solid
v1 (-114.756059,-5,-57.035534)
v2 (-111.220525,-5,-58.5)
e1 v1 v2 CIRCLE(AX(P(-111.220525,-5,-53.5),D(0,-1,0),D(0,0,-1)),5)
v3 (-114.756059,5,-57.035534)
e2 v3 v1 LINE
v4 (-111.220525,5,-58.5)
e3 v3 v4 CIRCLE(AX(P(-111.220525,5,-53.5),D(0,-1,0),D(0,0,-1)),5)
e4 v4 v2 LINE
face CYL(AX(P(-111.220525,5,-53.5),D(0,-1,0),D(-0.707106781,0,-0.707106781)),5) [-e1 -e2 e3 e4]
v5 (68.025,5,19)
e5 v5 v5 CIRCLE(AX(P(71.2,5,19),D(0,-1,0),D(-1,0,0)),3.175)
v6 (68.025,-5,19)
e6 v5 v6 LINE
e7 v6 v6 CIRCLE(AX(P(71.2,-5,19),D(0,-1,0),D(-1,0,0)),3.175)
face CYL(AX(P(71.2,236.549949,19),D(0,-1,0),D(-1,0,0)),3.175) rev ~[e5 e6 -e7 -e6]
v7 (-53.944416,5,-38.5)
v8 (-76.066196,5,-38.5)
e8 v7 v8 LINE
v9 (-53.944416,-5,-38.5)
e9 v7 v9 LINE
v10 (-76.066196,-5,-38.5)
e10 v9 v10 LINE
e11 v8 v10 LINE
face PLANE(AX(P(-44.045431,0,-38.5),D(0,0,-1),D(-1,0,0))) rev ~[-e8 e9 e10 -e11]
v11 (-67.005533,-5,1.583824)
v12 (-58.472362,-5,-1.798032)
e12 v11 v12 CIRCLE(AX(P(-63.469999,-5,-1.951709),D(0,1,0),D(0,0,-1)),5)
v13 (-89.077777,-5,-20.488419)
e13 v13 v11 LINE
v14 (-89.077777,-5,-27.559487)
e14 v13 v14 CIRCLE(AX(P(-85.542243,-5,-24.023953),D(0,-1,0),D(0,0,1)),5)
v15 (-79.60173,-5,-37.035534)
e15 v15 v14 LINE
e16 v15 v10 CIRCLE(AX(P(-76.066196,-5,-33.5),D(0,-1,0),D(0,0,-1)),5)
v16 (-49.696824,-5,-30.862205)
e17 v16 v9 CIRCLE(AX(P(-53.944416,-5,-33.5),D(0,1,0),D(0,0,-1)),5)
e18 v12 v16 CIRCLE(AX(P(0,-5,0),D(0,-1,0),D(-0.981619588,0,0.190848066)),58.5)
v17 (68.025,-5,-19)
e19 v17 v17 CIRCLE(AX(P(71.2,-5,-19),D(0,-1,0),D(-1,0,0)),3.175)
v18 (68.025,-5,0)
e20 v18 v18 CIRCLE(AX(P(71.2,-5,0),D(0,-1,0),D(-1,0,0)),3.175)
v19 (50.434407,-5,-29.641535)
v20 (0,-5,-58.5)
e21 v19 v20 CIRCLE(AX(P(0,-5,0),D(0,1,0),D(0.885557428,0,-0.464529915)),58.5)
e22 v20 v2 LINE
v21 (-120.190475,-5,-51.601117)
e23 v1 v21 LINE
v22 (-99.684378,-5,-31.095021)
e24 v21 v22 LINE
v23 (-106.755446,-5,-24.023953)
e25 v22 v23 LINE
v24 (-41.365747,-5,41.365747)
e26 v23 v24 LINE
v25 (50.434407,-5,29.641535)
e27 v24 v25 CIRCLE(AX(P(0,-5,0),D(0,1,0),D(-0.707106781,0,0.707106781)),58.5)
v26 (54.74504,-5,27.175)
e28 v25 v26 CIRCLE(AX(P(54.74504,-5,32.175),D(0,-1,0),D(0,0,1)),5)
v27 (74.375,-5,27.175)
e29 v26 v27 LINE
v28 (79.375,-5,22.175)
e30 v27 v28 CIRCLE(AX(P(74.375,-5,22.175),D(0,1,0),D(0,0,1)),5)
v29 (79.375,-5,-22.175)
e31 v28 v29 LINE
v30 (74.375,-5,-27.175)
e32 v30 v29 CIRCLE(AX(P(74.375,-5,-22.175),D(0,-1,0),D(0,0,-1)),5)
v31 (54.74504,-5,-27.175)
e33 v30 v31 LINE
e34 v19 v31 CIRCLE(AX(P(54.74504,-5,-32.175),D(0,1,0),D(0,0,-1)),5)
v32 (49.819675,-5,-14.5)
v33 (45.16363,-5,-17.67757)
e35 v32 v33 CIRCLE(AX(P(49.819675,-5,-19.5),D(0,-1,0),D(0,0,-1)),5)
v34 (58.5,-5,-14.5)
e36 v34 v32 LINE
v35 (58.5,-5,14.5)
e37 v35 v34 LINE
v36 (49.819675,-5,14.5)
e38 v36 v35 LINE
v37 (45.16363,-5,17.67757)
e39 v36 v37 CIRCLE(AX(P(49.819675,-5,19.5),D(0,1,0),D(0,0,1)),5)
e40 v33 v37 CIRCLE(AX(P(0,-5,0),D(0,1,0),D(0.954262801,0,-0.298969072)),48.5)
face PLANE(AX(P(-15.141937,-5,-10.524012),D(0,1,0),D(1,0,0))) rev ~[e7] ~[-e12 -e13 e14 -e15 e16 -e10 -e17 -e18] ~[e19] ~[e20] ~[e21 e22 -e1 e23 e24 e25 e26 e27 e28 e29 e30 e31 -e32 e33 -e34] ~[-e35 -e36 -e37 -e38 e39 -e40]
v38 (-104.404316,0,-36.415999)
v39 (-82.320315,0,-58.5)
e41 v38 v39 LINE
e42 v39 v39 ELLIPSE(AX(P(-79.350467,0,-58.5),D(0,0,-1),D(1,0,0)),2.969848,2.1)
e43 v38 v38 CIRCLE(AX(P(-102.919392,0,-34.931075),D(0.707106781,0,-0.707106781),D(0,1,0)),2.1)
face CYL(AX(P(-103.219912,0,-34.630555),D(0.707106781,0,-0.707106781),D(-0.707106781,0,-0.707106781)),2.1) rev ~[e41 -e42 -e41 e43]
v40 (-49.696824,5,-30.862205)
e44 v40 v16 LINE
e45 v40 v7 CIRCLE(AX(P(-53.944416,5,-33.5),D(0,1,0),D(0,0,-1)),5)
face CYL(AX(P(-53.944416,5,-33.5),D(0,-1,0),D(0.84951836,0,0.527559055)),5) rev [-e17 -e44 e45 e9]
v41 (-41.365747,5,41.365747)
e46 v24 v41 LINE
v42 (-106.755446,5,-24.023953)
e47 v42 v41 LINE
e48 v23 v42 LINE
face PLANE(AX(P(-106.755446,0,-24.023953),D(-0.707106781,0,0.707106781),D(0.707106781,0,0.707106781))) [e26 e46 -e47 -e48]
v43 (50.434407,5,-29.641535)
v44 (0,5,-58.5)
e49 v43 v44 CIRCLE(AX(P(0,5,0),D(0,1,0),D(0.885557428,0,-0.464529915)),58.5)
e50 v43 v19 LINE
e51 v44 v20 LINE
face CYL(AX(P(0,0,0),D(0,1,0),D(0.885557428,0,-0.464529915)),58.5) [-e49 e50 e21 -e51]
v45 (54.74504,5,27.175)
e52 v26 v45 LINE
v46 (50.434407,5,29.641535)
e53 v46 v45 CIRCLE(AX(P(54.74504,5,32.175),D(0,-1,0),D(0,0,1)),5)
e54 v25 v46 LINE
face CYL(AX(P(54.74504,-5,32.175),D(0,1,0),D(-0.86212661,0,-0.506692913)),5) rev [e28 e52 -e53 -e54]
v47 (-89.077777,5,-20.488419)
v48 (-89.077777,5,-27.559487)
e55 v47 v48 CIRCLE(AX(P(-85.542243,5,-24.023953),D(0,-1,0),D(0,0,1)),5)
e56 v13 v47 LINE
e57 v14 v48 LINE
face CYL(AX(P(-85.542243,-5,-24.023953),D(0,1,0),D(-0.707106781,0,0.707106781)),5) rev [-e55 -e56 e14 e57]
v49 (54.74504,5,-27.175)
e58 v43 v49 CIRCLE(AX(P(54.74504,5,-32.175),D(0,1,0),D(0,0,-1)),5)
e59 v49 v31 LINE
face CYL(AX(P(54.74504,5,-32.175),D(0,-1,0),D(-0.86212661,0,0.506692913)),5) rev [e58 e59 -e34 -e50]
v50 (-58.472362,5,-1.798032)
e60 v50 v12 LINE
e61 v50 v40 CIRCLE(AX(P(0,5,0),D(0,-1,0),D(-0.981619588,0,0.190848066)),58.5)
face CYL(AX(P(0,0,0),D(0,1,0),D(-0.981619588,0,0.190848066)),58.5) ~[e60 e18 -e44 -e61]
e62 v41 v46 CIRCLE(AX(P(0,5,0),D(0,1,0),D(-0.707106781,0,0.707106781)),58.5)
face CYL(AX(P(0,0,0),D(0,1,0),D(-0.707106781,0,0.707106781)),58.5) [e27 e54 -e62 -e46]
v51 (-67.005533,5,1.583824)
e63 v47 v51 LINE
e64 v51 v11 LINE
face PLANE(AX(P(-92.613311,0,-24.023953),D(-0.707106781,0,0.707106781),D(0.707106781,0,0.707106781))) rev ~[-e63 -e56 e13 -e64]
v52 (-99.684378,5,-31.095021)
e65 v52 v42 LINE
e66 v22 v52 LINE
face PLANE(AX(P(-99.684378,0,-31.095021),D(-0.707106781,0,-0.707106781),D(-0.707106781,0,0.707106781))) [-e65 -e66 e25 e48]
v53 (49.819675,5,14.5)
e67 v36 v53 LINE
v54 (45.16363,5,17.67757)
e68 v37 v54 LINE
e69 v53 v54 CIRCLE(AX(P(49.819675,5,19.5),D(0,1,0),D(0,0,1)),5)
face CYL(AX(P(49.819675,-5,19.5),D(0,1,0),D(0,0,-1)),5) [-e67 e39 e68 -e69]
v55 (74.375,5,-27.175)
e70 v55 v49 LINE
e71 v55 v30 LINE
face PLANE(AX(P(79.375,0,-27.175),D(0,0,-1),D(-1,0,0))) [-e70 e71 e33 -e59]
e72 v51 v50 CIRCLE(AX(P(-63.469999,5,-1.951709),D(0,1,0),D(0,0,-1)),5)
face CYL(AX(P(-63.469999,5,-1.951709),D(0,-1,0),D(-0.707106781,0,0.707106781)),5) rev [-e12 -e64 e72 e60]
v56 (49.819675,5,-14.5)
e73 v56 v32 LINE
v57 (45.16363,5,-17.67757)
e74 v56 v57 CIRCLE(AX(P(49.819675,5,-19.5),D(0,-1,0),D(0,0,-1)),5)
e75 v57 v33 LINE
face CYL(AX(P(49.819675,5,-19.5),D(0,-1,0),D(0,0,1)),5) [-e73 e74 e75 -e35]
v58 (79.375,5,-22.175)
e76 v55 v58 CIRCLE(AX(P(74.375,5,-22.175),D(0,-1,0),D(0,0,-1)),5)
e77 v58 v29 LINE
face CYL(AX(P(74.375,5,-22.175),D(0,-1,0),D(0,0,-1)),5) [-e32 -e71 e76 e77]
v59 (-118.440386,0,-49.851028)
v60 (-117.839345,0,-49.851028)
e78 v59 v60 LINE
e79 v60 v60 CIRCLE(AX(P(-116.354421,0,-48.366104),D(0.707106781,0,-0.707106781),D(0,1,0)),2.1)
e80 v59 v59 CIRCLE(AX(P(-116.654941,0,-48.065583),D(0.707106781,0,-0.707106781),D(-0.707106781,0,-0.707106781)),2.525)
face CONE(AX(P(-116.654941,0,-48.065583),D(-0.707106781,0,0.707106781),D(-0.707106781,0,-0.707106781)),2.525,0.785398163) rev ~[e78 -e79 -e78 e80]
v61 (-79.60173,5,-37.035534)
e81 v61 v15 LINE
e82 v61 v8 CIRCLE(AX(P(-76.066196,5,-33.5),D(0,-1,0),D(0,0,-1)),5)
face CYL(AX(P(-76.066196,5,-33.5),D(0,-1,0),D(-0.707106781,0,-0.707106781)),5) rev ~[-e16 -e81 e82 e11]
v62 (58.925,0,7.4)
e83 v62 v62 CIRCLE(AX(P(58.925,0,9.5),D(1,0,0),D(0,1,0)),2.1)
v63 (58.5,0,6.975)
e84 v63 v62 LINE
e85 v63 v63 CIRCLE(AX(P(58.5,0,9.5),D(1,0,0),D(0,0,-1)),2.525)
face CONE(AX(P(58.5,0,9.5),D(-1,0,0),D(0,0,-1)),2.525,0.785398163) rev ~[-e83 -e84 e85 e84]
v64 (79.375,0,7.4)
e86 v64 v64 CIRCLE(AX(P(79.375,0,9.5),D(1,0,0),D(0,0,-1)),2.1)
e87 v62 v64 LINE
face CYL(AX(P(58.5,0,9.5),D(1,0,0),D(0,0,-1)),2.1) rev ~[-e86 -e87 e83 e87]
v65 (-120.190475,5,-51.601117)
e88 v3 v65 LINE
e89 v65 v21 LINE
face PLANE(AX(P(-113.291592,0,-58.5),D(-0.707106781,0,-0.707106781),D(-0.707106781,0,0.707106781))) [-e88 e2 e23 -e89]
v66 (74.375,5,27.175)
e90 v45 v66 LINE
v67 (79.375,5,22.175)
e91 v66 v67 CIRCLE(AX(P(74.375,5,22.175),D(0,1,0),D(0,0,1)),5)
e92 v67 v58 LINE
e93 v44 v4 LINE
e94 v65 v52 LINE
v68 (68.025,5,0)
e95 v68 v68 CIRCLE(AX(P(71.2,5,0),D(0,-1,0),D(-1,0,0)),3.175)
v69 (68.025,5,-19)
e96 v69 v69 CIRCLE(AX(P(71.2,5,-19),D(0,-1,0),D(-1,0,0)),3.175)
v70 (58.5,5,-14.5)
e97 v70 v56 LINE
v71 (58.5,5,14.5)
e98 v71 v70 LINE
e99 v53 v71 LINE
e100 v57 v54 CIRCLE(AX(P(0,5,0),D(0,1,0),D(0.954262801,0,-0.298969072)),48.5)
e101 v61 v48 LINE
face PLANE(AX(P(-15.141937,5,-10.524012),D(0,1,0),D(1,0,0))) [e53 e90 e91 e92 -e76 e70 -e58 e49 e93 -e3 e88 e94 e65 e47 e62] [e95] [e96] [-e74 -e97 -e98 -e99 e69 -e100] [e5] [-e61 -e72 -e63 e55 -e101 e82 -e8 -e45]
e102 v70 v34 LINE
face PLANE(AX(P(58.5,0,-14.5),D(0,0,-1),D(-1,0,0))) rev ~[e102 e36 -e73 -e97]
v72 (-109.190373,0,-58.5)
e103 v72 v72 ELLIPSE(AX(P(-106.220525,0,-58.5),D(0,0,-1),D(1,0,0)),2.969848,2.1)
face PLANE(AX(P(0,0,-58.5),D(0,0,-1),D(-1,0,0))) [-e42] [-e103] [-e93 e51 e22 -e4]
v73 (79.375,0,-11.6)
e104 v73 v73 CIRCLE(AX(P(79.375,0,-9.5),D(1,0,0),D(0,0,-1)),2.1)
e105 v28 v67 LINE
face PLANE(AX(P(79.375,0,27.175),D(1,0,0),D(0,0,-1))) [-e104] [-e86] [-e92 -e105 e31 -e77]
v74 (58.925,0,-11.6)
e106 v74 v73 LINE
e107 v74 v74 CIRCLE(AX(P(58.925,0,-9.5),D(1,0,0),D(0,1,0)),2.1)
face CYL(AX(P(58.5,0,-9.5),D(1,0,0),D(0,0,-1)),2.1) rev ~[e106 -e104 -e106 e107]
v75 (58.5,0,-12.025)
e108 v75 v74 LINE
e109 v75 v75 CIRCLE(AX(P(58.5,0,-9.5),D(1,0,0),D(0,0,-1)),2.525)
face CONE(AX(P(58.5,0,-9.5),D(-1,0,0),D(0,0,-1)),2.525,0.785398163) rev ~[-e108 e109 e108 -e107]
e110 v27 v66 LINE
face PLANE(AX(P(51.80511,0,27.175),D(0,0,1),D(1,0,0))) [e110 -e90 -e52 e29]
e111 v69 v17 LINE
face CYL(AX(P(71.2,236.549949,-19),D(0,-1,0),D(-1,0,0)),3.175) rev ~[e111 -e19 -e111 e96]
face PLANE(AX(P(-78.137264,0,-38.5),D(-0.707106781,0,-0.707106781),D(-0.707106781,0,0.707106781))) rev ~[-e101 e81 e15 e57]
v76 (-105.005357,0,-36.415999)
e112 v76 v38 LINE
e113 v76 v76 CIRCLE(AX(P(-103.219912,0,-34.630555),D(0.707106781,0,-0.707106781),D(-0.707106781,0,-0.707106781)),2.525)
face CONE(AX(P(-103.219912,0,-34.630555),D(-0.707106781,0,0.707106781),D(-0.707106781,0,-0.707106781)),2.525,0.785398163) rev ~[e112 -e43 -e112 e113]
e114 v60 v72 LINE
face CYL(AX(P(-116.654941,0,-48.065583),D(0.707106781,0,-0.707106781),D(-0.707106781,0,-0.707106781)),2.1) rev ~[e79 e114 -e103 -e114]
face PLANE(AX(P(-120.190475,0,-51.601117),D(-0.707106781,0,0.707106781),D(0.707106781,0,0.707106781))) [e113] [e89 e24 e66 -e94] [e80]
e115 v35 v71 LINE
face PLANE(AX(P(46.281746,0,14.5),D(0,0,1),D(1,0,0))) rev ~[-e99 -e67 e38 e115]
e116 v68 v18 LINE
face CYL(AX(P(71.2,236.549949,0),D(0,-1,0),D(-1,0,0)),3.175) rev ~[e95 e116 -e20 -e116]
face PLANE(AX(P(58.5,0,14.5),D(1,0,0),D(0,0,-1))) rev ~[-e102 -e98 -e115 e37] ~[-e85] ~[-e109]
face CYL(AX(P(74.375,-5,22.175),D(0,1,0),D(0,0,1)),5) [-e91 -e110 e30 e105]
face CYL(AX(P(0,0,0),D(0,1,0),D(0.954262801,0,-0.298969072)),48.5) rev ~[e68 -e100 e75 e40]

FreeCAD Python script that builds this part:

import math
import FreeCAD as App
import Part
import Sketcher

V = App.Vector
Q = App.Units.Quantity


def edges_at(feature, points):
    """Names of the edges that pass closest to the given points."""
    edges = feature.Shape.Edges
    near = lambda p: min(range(len(edges)), key=lambda i: edges[i].distToShape(Part.Vertex(*p))[0])
    return sorted({f"Edge{near(p) + 1}" for p in points})

doc = App.newDocument("Part")
body = doc.addObject("PartDesign::Body", "Body")

# Sketch on XZ plane
sketch1 = body.newObject("Sketcher::SketchObject", "Sketch")
sketch1.AttachmentSupport = (doc.getObject("XZ_Plane"), [""])
sketch1.MapMode = "FlatFace"
sketch1.addGeometry(Part.LineSegment(V(-120, -52, 0), V(-100, -31, 0)), False)
sketch1.addGeometry(Part.LineSegment(V(-100, -31, 0), V(-107, -24, 0)), False)
sketch1.addGeometry(Part.LineSegment(V(-107, -24, 0), V(-41, 41, 0)), False)
sketch1.addGeometry(Part.ArcOfCircle(Part.Circle(V(0, 0, 0), V(0, 0, 1), 58), math.radians(28), math.radians(135)), False)
sketch1.addGeometry(Part.LineSegment(V(52, 27, 0), V(79, 27, 0)), False)
sketch1.addGeometry(Part.LineSegment(V(79, 27, 0), V(79, -27, 0)), False)
sketch1.addGeometry(Part.LineSegment(V(79, -27, 0), V(52, -27, 0)), False)
sketch1.addGeometry(Part.ArcOfCircle(Part.Circle(V(0, 0, 0), V(0, 0, 1), 58), math.radians(-90), math.radians(-28)), False)
sketch1.addGeometry(Part.LineSegment(V(0, -58, 0), V(-113, -58, 0)), False)
sketch1.addGeometry(Part.LineSegment(V(-113, -58, 0), V(-120, -52, 0)), False)
sketch1.addGeometry(Part.LineSegment(V(-57, 11, 0), V(-93, -24, 0)), False)
sketch1.addGeometry(Part.LineSegment(V(-93, -24, 0), V(-78, -38, 0)), False)
sketch1.addGeometry(Part.LineSegment(V(-78, -38, 0), V(-44, -38, 0)), False)
sketch1.addGeometry(Part.ArcOfCircle(Part.Circle(V(0, 0, 0), V(0, 0, 1), 58), math.radians(169), math.radians(221)), False)
sketch1.addGeometry(Part.LineSegment(V(58, -14, 0), V(58, 14, 0)), False)
sketch1.addGeometry(Part.LineSegment(V(58, 14, 0), V(46, 14, 0)), False)
sketch1.addGeometry(Part.ArcOfCircle(Part.Circle(V(0, 0, 0), V(0, 0, 1), 48), math.radians(17), math.radians(343)), False)
sketch1.addGeometry(Part.LineSegment(V(46, -14, 0), V(58, -14, 0)), False)
sketch1.addConstraint(Sketcher.Constraint("Coincident", 0, 2, 1, 1))
sketch1.addConstraint(Sketcher.Constraint("Coincident", 1, 2, 2, 1))
sketch1.addConstraint(Sketcher.Constraint("Tangent", 2, 2, 3, 2))
sketch1.addConstraint(Sketcher.Constraint("Coincident", 3, 1, 4, 1))
sketch1.addConstraint(Sketcher.Constraint("Coincident", 4, 2, 5, 1))
sketch1.addConstraint(Sketcher.Constraint("Coincident", 5, 2, 6, 1))
sketch1.addConstraint(Sketcher.Constraint("Coincident", 6, 2, 7, 2))
sketch1.addConstraint(Sketcher.Constraint("Tangent", 7, 1, 8, 1))
sketch1.addConstraint(Sketcher.Constraint("Coincident", 8, 2, 9, 1))
sketch1.addConstraint(Sketcher.Constraint("Coincident", 9, 2, 0, 1))
sketch1.addConstraint(Sketcher.Constraint("Coincident", 10, 2, 11, 1))
sketch1.addConstraint(Sketcher.Constraint("Coincident", 11, 2, 12, 1))
sketch1.addConstraint(Sketcher.Constraint("Coincident", 12, 2, 13, 2))
sketch1.addConstraint(Sketcher.Constraint("Coincident", 13, 1, 10, 1))
sketch1.addConstraint(Sketcher.Constraint("Coincident", 14, 2, 15, 1))
sketch1.addConstraint(Sketcher.Constraint("Coincident", 15, 2, 16, 1))
sketch1.addConstraint(Sketcher.Constraint("Coincident", 16, 2, 17, 1))
sketch1.addConstraint(Sketcher.Constraint("Coincident", 17, 2, 14, 1))
sketch1.addConstraint(Sketcher.Constraint("Horizontal", 4))
sketch1.addConstraint(Sketcher.Constraint("Vertical", 5))
sketch1.addConstraint(Sketcher.Constraint("Horizontal", 6))
sketch1.addConstraint(Sketcher.Constraint("Horizontal", 8))
sketch1.addConstraint(Sketcher.Constraint("Horizontal", 12))
sketch1.addConstraint(Sketcher.Constraint("Vertical", 14))
sketch1.addConstraint(Sketcher.Constraint("Horizontal", 15))
sketch1.addConstraint(Sketcher.Constraint("Horizontal", 17))
sketch1.addConstraint(Sketcher.Constraint("Coincident", 3, 3, -1, 1))
sketch1.addConstraint(Sketcher.Constraint("Coincident", 7, 3, -1, 1))
sketch1.addConstraint(Sketcher.Constraint("Coincident", 13, 3, -1, 1))
sketch1.addConstraint(Sketcher.Constraint("Coincident", 16, 3, -1, 1))
sketch1.addConstraint(Sketcher.Constraint("Equal", 3, 7))
sketch1.addConstraint(Sketcher.Constraint("Equal", 7, 13))
sketch1.addConstraint(Sketcher.Constraint("Perpendicular", 0, 1))
sketch1.addConstraint(Sketcher.Constraint("Perpendicular", 1, 2))
sketch1.addConstraint(Sketcher.Constraint("Perpendicular", 2, 9))
sketch1.addConstraint(Sketcher.Constraint("Perpendicular", 9, 10))
sketch1.addConstraint(Sketcher.Constraint("Perpendicular", 10, 11))
sketch1.addConstraint(Sketcher.Constraint("Horizontal", 1, 2, 10, 2))
sketch1.addConstraint(Sketcher.Constraint("Vertical", 3, 1, 6, 2))
sketch1.addConstraint(Sketcher.Constraint("Vertical", 15, 2, 16, 2))
sketch1.addConstraint(Sketcher.Constraint("Radius", 3, Q("58.5 mm")))
sketch1.addConstraint(Sketcher.Constraint("Radius", 16, Q("48.5 mm")))
sketch1.addConstraint(Sketcher.Constraint("DistanceY", 14, 1, 14, 2, Q("29 mm")))
sketch1.addConstraint(Sketcher.Constraint("Angle", 0, Q("45 deg")))
sketch1.addConstraint(Sketcher.Constraint("Distance", 0, Q("29 mm")))
sketch1.addConstraint(Sketcher.Constraint("Distance", 1, Q("10 mm")))
sketch1.addConstraint(Sketcher.Constraint("DistanceY", 8, 2, 11, 2, Q("20 mm")))
sketch1.addConstraint(Sketcher.Constraint("DistanceY", 5, 2, 5, 1, Q("54.35 mm")))
sketch1.addConstraint(Sketcher.Constraint("DistanceX", -1, 1, 14, 2, Q("58.5 mm")))
sketch1.addConstraint(Sketcher.Constraint("Distance", 2, Q("92.475 mm")))
sketch1.addConstraint(Sketcher.Constraint("DistanceX", -1, 1, 4, 2, Q("79.375 mm")))
sketch1.addConstraint(Sketcher.Constraint("DistanceX", 13, 1, 2, 2, Q("16.058999 mm")))
pad1 = body.newObject("PartDesign::Pad", "Pad")
pad1.Profile = sketch1
pad1.Length = 10
pad1.Midplane = True

# Sketch on an angled plane
sketch2 = body.newObject("Sketcher::SketchObject", "Sketch001")
sketch2.Placement = App.Placement(V(-34.294679, 0, 34.294679), App.Rotation(V(0.707106781, 0, 0.707106781), V(0, 0.999999999, 0), V(-0.707106781, 0, 0.707106781), "ZXY"))
sketch2.addGeometry(Part.Circle(V(-116.5, 0, 0), V(0, 0, 1), 2.1), False)
sketch2.addGeometry(Part.Circle(V(-97.5, 0, 0), V(0, 0, 1), 2.1), False)
sketch2.addConstraint(Sketcher.Constraint("Equal", 0, 1))
sketch2.addConstraint(Sketcher.Constraint("PointOnObject", 0, 3, -1))
sketch2.addConstraint(Sketcher.Constraint("PointOnObject", 1, 3, -1))
sketch2.addConstraint(Sketcher.Constraint("Diameter", 0, Q("4.2 mm")))
sketch2.addConstraint(Sketcher.Constraint("DistanceX", 0, 3, 1, 3, Q("19 mm")))
sketch2.addConstraint(Sketcher.Constraint("DistanceX", 0, 3, -1, 1, Q("116.475 mm")))
doc.recompute()
hole = body.newObject("PartDesign::Hole", "Hole")
hole.Profile = sketch2
hole.ThreadType = "None"
hole.Diameter = 4.2
hole.DepthType = "Dimension"
hole.Depth = 40
hole.DrillPoint = "Angled"
hole.DrillPointAngle = 118
hole.HoleCutType = "Countersink"
hole.HoleCutDiameter = 5.05
hole.HoleCutCountersinkAngle = 90

# Sketch on YZ plane
sketch3 = body.newObject("Sketcher::SketchObject", "Sketch002")
sketch3.AttachmentSupport = (doc.getObject("YZ_Plane"), [""])
sketch3.MapMode = "FlatFace"
sketch3.AttachmentOffset = App.Placement(V(0, 0, 58.5), App.Rotation())
sketch3.addGeometry(Part.Circle(V(0, -9.5, 0), V(0, 0, 1), 2.1), False)
sketch3.addGeometry(Part.Circle(V(0, 9.5, 0), V(0, 0, 1), 2.1), False)
sketch3.addConstraint(Sketcher.Constraint("Equal", 0, 1))
sketch3.addConstraint(Sketcher.Constraint("Symmetric", 0, 3, 1, 3, -1, 1))
sketch3.addConstraint(Sketcher.Constraint("PointOnObject", 0, 3, -2))
sketch3.addConstraint(Sketcher.Constraint("Diameter", 0, Q("4.2 mm")))
sketch3.addConstraint(Sketcher.Constraint("DistanceY", 0, 3, 1, 3, Q("19 mm")))
doc.recompute()
hole2 = body.newObject("PartDesign::Hole", "Hole001")
hole2.Profile = sketch3
hole2.ThreadType = "None"
hole2.Diameter = 4.2
hole2.DepthType = "Dimension"
hole2.Depth = 20.875
hole2.DrillPoint = "Flat"
hole2.HoleCutType = "Countersink"
hole2.HoleCutDiameter = 5.05
hole2.HoleCutCountersinkAngle = 90
hole2.Reversed = True

# Sketch on XZ plane
sketch4 = body.newObject("Sketcher::SketchObject", "Sketch003")
sketch4.AttachmentSupport = (doc.getObject("XZ_Plane"), [""])
sketch4.MapMode = "FlatFace"
sketch4.AttachmentOffset = App.Placement(V(0, 0, -5), App.Rotation())
sketch4.addGeometry(Part.Circle(V(71.2, -19, 0), V(0, 0, 1), 3.2), False)
sketch4.addGeometry(Part.Circle(V(71.2, 0, 0), V(0, 0, 1), 3.2), False)
sketch4.addGeometry(Part.Circle(V(71.2, 19, 0), V(0, 0, 1), 3.2), False)
sketch4.addConstraint(Sketcher.Constraint("Equal", 0, 1))
sketch4.addConstraint(Sketcher.Constraint("Equal", 1, 2))
sketch4.addConstraint(Sketcher.Constraint("Symmetric", 0, 3, 2, 3, -1))
sketch4.addConstraint(Sketcher.Constraint("PointOnObject", 1, 3, -1))
sketch4.addConstraint(Sketcher.Constraint("Vertical", 0, 3, 1, 3))
sketch4.addConstraint(Sketcher.Constraint("Diameter", 0, Q("6.35 mm")))
sketch4.addConstraint(Sketcher.Constraint("DistanceY", 0, 3, -1, 1, Q("19 mm")))
sketch4.addConstraint(Sketcher.Constraint("DistanceX", -1, 1, 0, 3, Q("71.2 mm")))
doc.recompute()
hole3 = body.newObject("PartDesign::Hole", "Hole002")
hole3.Profile = sketch4
hole3.ThreadType = "None"
hole3.Diameter = 6.35
hole3.DepthType = "ThroughAll"
hole3.Reversed = True
doc.recompute()

fillet = body.newObject("PartDesign::Fillet", "Fillet")
fillet.Base = (hole3, edges_at(hole3, [
    (-113.292, 0, -58.5),
    (51.805, 0, -27.175),
    (79.375, 0, -27.175),
    (79.375, 0, 27.175),
    (51.805, 0, 27.175),
    (46.282, 0, 14.5),
    (46.282, 0, -14.5),
    (-92.613, 0, -24.024),
    (-78.137, 0, -38.5),
    (-44.045, 0, -38.5),
    (-57.425, 0, 11.165),
]))
fillet.Radius = 5

doc.recompute()
